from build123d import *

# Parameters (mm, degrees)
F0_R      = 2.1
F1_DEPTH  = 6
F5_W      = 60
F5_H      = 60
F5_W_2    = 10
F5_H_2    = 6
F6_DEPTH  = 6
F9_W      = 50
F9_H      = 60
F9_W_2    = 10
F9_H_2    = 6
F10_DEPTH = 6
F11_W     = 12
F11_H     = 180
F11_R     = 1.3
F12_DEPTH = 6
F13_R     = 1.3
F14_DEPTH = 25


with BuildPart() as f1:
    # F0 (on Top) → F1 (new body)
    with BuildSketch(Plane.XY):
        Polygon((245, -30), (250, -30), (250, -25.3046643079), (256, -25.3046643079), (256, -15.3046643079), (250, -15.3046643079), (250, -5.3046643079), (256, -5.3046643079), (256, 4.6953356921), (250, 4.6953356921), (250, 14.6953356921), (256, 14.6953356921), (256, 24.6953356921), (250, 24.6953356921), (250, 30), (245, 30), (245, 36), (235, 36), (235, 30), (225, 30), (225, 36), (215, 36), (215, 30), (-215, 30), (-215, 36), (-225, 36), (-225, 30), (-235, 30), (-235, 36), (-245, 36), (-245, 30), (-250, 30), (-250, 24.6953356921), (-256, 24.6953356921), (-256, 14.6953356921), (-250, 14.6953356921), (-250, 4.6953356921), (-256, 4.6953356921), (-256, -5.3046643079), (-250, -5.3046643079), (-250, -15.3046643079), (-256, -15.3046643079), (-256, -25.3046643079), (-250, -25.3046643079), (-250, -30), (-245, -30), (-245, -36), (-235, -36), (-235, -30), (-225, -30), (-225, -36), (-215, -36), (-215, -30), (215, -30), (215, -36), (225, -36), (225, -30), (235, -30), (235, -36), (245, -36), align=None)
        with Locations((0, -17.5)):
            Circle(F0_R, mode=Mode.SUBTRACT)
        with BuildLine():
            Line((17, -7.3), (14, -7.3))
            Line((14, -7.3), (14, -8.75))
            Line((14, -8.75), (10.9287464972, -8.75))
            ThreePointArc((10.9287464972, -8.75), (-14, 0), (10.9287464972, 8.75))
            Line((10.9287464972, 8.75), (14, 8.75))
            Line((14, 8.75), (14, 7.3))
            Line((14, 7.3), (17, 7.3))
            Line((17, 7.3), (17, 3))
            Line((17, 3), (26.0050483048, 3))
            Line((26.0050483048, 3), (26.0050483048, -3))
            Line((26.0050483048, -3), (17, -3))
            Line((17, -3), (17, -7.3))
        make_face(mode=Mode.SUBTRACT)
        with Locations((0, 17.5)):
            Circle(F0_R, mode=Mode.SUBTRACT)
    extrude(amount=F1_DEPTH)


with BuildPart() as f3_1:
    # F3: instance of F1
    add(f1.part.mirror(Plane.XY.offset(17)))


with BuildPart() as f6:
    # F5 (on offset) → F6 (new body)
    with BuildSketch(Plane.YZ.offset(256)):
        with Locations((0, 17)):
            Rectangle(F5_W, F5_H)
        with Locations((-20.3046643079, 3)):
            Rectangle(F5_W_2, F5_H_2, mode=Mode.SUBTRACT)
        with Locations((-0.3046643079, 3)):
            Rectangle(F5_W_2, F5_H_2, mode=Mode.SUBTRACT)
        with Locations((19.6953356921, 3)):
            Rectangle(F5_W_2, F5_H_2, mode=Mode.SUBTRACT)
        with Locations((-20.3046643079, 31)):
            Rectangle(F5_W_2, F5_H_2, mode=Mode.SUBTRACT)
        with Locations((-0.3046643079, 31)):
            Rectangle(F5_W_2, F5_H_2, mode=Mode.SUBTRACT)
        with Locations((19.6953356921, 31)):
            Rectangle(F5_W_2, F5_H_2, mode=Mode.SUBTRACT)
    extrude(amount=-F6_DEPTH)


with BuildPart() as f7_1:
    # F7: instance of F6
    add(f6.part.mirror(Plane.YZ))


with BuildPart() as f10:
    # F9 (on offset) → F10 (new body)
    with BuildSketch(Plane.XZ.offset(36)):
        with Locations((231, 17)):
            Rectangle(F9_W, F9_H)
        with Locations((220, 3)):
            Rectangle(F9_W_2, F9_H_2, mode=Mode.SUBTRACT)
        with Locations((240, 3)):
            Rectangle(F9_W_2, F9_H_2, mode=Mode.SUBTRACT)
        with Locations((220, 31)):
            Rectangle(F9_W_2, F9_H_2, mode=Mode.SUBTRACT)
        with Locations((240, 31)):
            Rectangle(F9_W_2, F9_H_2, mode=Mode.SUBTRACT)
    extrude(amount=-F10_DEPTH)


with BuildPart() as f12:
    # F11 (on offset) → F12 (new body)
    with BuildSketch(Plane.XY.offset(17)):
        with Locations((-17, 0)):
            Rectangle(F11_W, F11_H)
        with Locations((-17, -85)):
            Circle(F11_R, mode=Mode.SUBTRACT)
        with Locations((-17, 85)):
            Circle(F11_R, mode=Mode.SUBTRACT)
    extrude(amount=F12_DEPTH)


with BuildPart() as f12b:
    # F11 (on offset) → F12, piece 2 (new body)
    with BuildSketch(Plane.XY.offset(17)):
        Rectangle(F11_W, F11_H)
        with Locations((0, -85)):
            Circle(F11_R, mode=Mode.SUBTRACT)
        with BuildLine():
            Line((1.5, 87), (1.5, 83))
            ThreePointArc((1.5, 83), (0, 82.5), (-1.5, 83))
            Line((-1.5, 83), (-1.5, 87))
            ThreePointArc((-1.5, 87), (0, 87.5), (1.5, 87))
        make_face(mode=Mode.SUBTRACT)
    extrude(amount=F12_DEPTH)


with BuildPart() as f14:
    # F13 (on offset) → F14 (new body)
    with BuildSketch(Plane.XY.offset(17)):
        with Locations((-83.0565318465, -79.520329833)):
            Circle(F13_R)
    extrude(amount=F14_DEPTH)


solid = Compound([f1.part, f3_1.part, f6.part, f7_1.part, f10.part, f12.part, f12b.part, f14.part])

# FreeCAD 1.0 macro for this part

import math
import FreeCAD as App
import Part
import Sketcher
from FreeCAD import Vector
Q = App.Units.Quantity


def add_polygon(sketch, points):
    """Adds a closed chain of lines whose ends are joined by coincident constraints."""
    first, n = sketch.GeometryCount, len(points)
    for a, b in zip(points, points[1:] + points[:1]):
        sketch.addGeometry(Part.LineSegment(App.Vector(*a, 0), App.Vector(*b, 0)), False)
    for i in range(n):
        sketch.addConstraint(Sketcher.Constraint("Coincident", first + i, 2, first + (i + 1) % n, 1))

doc = App.newDocument("Part")
body = doc.addObject("PartDesign::Body", "Body")

sketch1 = doc.addObject("Sketcher::SketchObject", "Sketch")
body.addObject(sketch1)
sketch1.AttachmentSupport = (doc.XY_Plane, [""])
sketch1.MapMode = "FlatFace"
add_polygon(sketch1, [(245, -30), (250, -30), (250, -25.304664), (256, -25.304664), (256, -15.304664), (250, -15.304664), (250, -5.304664), (256, -5.304664), (256, 4.695336), (250, 4.695336), (250, 14.695336), (256, 14.695336), (256, 24.695336), (250, 24.695336), (250, 30), (245, 30), (245, 36), (235, 36), (235, 30), (225, 30), (225, 36), (215, 36), (215, 30), (-215, 30), (-215, 36), (-225, 36), (-225, 30), (-235, 30), (-235, 36), (-245, 36), (-245, 30), (-250, 30), (-250, 24.695336), (-256, 24.695336), (-256, 14.695336), (-250, 14.695336), (-250, 4.695336), (-256, 4.695336), (-256, -5.304664), (-250, -5.304664), (-250, -15.304664), (-256, -15.304664), (-256, -25.304664), (-250, -25.304664), (-250, -30), (-245, -30), (-245, -36), (-235, -36), (-235, -30), (-225, -30), (-225, -36), (-215, -36), (-215, -30), (215, -30), (215, -36), (225, -36), (225, -30), (235, -30), (235, -36), (245, -36)])
sketch1.addGeometry(Part.Circle(Vector(0, -17.5, 0), Vector(0, 0, 1), 2.1), False)
sketch1.addGeometry(Part.Circle(Vector(0, 17.5, 0), Vector(0, 0, 1), 2.1), False)
sketch1.addGeometry(Part.LineSegment(Vector(17, -3, 0), Vector(17, -7.3, 0)), False)
sketch1.addGeometry(Part.LineSegment(Vector(17, -7.3, 0), Vector(14, -7.3, 0)), False)
sketch1.addGeometry(Part.LineSegment(Vector(14, -7.3, 0), Vector(14, -8.75, 0)), False)
sketch1.addGeometry(Part.LineSegment(Vector(14, -8.75, 0), Vector(10.928746, -8.75, 0)), False)
sketch1.addGeometry(Part.ArcOfCircle(Part.Circle(Vector(0, 0, 0), Vector(0, 0, 1), 14), math.radians(38.682187), math.radians(321.317813)), False)
sketch1.addGeometry(Part.LineSegment(Vector(10.928746, 8.75, 0), Vector(14, 8.75, 0)), False)
sketch1.addGeometry(Part.LineSegment(Vector(14, 8.75, 0), Vector(14, 7.3, 0)), False)
sketch1.addGeometry(Part.LineSegment(Vector(14, 7.3, 0), Vector(17, 7.3, 0)), False)
sketch1.addGeometry(Part.LineSegment(Vector(17, 7.3, 0), Vector(17, 3, 0)), False)
sketch1.addGeometry(Part.LineSegment(Vector(17, 3, 0), Vector(26.005048, 3, 0)), False)
sketch1.addGeometry(Part.LineSegment(Vector(26.005048, 3, 0), Vector(26.005048, -3, 0)), False)
sketch1.addGeometry(Part.LineSegment(Vector(26.005048, -3, 0), Vector(17, -3, 0)), False)
sketch1.addConstraint([
    Sketcher.Constraint("Coincident", 62, 2, 63, 1),
    Sketcher.Constraint("Coincident", 63, 2, 64, 1),
    Sketcher.Constraint("Coincident", 64, 2, 65, 1),
    Sketcher.Constraint("Coincident", 65, 2, 66, 2),
    Sketcher.Constraint("Coincident", 66, 1, 67, 1),
    Sketcher.Constraint("Coincident", 67, 2, 68, 1),
    Sketcher.Constraint("Coincident", 68, 2, 69, 1),
    Sketcher.Constraint("Coincident", 69, 2, 70, 1),
    Sketcher.Constraint("Coincident", 70, 2, 71, 1),
    Sketcher.Constraint("Coincident", 71, 2, 72, 1),
    Sketcher.Constraint("Coincident", 72, 2, 73, 1),
    Sketcher.Constraint("Coincident", 73, 2, 62, 1),
    Sketcher.Constraint("Horizontal", 0),
    Sketcher.Constraint("Vertical", 1),
    Sketcher.Constraint("Horizontal", 2),
    Sketcher.Constraint("Vertical", 3),
    Sketcher.Constraint("Horizontal", 4),
    Sketcher.Constraint("Vertical", 5),
    Sketcher.Constraint("Horizontal", 6),
    Sketcher.Constraint("Vertical", 7),
    Sketcher.Constraint("Horizontal", 8),
    Sketcher.Constraint("Vertical", 9),
    Sketcher.Constraint("Horizontal", 10),
    Sketcher.Constraint("Vertical", 11),
    Sketcher.Constraint("Horizontal", 12),
    Sketcher.Constraint("Vertical", 13),
    Sketcher.Constraint("Horizontal", 14),
    Sketcher.Constraint("Vertical", 15),
    Sketcher.Constraint("Horizontal", 16),
    Sketcher.Constraint("Vertical", 17),
    Sketcher.Constraint("Horizontal", 18),
    Sketcher.Constraint("Vertical", 19),
    Sketcher.Constraint("Horizontal", 20),
    Sketcher.Constraint("Vertical", 21),
    Sketcher.Constraint("Horizontal", 22),
    Sketcher.Constraint("Vertical", 23),
    Sketcher.Constraint("Horizontal", 24),
    Sketcher.Constraint("Vertical", 25),
    Sketcher.Constraint("Horizontal", 26),
    Sketcher.Constraint("Vertical", 27),
    Sketcher.Constraint("Horizontal", 28),
    Sketcher.Constraint("Vertical", 29),
    Sketcher.Constraint("Horizontal", 30),
    Sketcher.Constraint("Vertical", 31),
    Sketcher.Constraint("Horizontal", 32),
    Sketcher.Constraint("Vertical", 33),
    Sketcher.Constraint("Horizontal", 34),
    Sketcher.Constraint("Vertical", 35),
    Sketcher.Constraint("Horizontal", 36),
    Sketcher.Constraint("Vertical", 37),
    Sketcher.Constraint("Horizontal", 38),
    Sketcher.Constraint("Vertical", 39),
    Sketcher.Constraint("Horizontal", 40),
    Sketcher.Constraint("Vertical", 41),
    Sketcher.Constraint("Horizontal", 42),
    Sketcher.Constraint("Vertical", 43),
    Sketcher.Constraint("Horizontal", 44),
    Sketcher.Constraint("Vertical", 45),
    Sketcher.Constraint("Horizontal", 46),
    Sketcher.Constraint("Vertical", 47),
    Sketcher.Constraint("Horizontal", 48),
    Sketcher.Constraint("Vertical", 49),
    Sketcher.Constraint("Horizontal", 50),
    Sketcher.Constraint("Vertical", 51),
    Sketcher.Constraint("Horizontal", 52),
    Sketcher.Constraint("Vertical", 53),
    Sketcher.Constraint("Horizontal", 54),
    Sketcher.Constraint("Vertical", 55),
    Sketcher.Constraint("Horizontal", 56),
    Sketcher.Constraint("Vertical", 57),
    Sketcher.Constraint("Horizontal", 58),
    Sketcher.Constraint("Vertical", 59),
    Sketcher.Constraint("Vertical", 62),
    Sketcher.Constraint("Horizontal", 63),
    Sketcher.Constraint("Vertical", 64),
    Sketcher.Constraint("Horizontal", 65),
    Sketcher.Constraint("Horizontal", 67),
    Sketcher.Constraint("Vertical", 68),
    Sketcher.Constraint("Horizontal", 69),
    Sketcher.Constraint("Vertical", 70),
    Sketcher.Constraint("Horizontal", 71),
    Sketcher.Constraint("Vertical", 72),
    Sketcher.Constraint("Horizontal", 73),
    Sketcher.Constraint("Coincident", 66, 3, -1, 1),
    Sketcher.Constraint("Equal", 60, 61),
    Sketcher.Constraint("Symmetric", 60, 3, 61, 3, -1, 1),
    Sketcher.Constraint("Symmetric", 0, 2, 30, 2, -1, 1),
    Sketcher.Constraint("Symmetric", 13, 2, 43, 2, -1, 1),
    Sketcher.Constraint("Symmetric", 15, 2, 45, 2, -1, 1),
    Sketcher.Constraint("Symmetric", 17, 2, 47, 2, -1, 1),
    Sketcher.Constraint("Symmetric", 19, 2, 49, 2, -1, 1),
    Sketcher.Constraint("Symmetric", 21, 2, 51, 2, -1, 1),
    Sketcher.Constraint("Symmetric", 23, 2, 53, 2, -1, 1),
    Sketcher.Constraint("Symmetric", 25, 2, 55, 2, -1, 1),
    Sketcher.Constraint("Symmetric", 27, 2, 57, 2, -1, 1),
    Sketcher.Constraint("Symmetric", 20, 2, 23, 2, -2),
    Sketcher.Constraint("Symmetric", 18, 2, 25, 2, -2),
    Sketcher.Constraint("Symmetric", 16, 2, 27, 2, -2),
    Sketcher.Constraint("Symmetric", 14, 2, 29, 2, -2),
    Sketcher.Constraint("Symmetric", 12, 2, 31, 2, -2),
    Sketcher.Constraint("Symmetric", 10, 2, 33, 2, -2),
    Sketcher.Constraint("Symmetric", 8, 2, 35, 2, -2),
    Sketcher.Constraint("Symmetric", 6, 2, 37, 2, -2),
    Sketcher.Constraint("Symmetric", 4, 2, 39, 2, -2),
    Sketcher.Constraint("Symmetric", 2, 2, 41, 2, -2),
    Sketcher.Constraint("Symmetric", 64, 2, 67, 2, -1),
    Sketcher.Constraint("Symmetric", 62, 2, 69, 2, -1),
    Sketcher.Constraint("PointOnObject", 60, 3, -2),
    Sketcher.Constraint("Horizontal", 14, 2, 17, 2),
    Sketcher.Constraint("Horizontal", 16, 2, 19, 2),
    Sketcher.Constraint("Horizontal", 18, 2, 21, 2),
    Sketcher.Constraint("Vertical", 1, 2, 4, 2),
    Sketcher.Constraint("Vertical", 3, 2, 6, 2),
    Sketcher.Constraint("Vertical", 5, 2, 8, 2),
    Sketcher.Constraint("Vertical", 7, 2, 10, 2),
    Sketcher.Constraint("Vertical", 15, 2, 58, 2),
    Sketcher.Constraint("Equal", 16, 18),
    Sketcher.Constraint("Equal", 18, 20),
    Sketcher.Constraint("Equal", 58, 3),
    Sketcher.Constraint("Equal", 3, 5),
    Sketcher.Constraint("Equal", 5, 7),
    Sketcher.Constraint("Equal", 7, 9),
    Sketcher.Constraint("Equal", 9, 11),
    Sketcher.Constraint("Equal", 42, 15),
    Sketcher.Constraint("Equal", 62, 70),
    Sketcher.Constraint("Equal", 59, 72),
    Sketcher.Constraint("Radius", 66, Q("14 mm")),
    Sketcher.Constraint("Diameter", 60, Q("4.2 mm")),
    Sketcher.Constraint("DistanceX", 0, 1, 0, 2, Q("5 mm")),
    Sketcher.Constraint("DistanceX", 2, 1, 2, 2, Q("6 mm")),
    Sketcher.Constraint("DistanceX", 16, 2, 16, 1, Q("10 mm")),
    Sketcher.Constraint("DistanceX", 22, 2, 22, 1, Q("430 mm")),
    Sketcher.Constraint("DistanceX", 63, 2, 63, 1, Q("3 mm")),
    Sketcher.Constraint("DistanceY", 62, 2, 62, 1, Q("4.3 mm")),
    Sketcher.Constraint("DistanceY", 0, 2, -1, 1, Q("30 mm")),
    Sketcher.Constraint("DistanceX", -1, 1, 62, 2, Q("17 mm")),
    Sketcher.Constraint("DistanceY", 64, 2, 64, 1, Q("1.45 mm")),
    Sketcher.Constraint("DistanceY", 60, 3, -1, 1, Q("17.5 mm")),
    Sketcher.Constraint("DistanceX", 71, 1, 71, 2, Q("9.005048 mm")),
    Sketcher.Constraint("DistanceY", 1, 1, 1, 2, Q("4.695336 mm")),
])
pad1 = doc.addObject("PartDesign::Pad", "Pad")
body.addObject(pad1)
pad1.Profile = sketch1
pad1.Length = 6
body2 = doc.addObject("PartDesign::Body", "Body001")
doc.recompute()

mirroring = doc.addObject("Part::Mirroring", "Mirroring")
mirroring.Source = body
mirroring.Base = Vector(0, 0, 17)
mirroring.Normal = Vector(0, 0, 1)
body2.BaseFeature = mirroring
doc.recompute()
body3 = doc.addObject("PartDesign::Body", "Body002")

sketch2 = doc.addObject("Sketcher::SketchObject", "Sketch001")
body3.addObject(sketch2)
sketch2.AttachmentSupport = (doc.getObject("YZ_Plane002"), [""])
sketch2.MapMode = "FlatFace"
sketch2.AttachmentOffset = App.Placement(Vector(0, 0, 256), App.Rotation())
add_polygon(sketch2, [(-30, 47), (-30, -13), (30, -13), (30, 47)])
add_polygon(sketch2, [(-15.304664, 0), (-25.304664, 0), (-25.304664, 6), (-15.304664, 6)])
add_polygon(sketch2, [(4.695336, 0), (-5.304664, 0), (-5.304664, 6), (4.695336, 6)])
add_polygon(sketch2, [(24.695336, 0), (14.695336, 0), (14.695336, 6), (24.695336, 6)])
add_polygon(sketch2, [(-15.304664, 28), (-25.304664, 28), (-25.304664, 34), (-15.304664, 34)])
add_polygon(sketch2, [(4.695336, 28), (-5.304664, 28), (-5.304664, 34), (4.695336, 34)])
add_polygon(sketch2, [(24.695336, 28), (14.695336, 28), (14.695336, 34), (24.695336, 34)])
sketch2.addConstraint([
    Sketcher.Constraint("Vertical", 0),
    Sketcher.Constraint("Horizontal", 1),
    Sketcher.Constraint("Vertical", 2),
    Sketcher.Constraint("Horizontal", 3),
    Sketcher.Constraint("Horizontal", 4),
    Sketcher.Constraint("Vertical", 5),
    Sketcher.Constraint("Horizontal", 6),
    Sketcher.Constraint("Vertical", 7),
    Sketcher.Constraint("Horizontal", 8),
    Sketcher.Constraint("Vertical", 9),
    Sketcher.Constraint("Horizontal", 10),
    Sketcher.Constraint("Vertical", 11),
    Sketcher.Constraint("Horizontal", 12),
    Sketcher.Constraint("Vertical", 13),
    Sketcher.Constraint("Horizontal", 14),
    Sketcher.Constraint("Vertical", 15),
    Sketcher.Constraint("Horizontal", 16),
    Sketcher.Constraint("Vertical", 17),
    Sketcher.Constraint("Horizontal", 18),
    Sketcher.Constraint("Vertical", 19),
    Sketcher.Constraint("Horizontal", 20),
    Sketcher.Constraint("Vertical", 21),
    Sketcher.Constraint("Horizontal", 22),
    Sketcher.Constraint("Vertical", 23),
    Sketcher.Constraint("Horizontal", 24),
    Sketcher.Constraint("Vertical", 25),
    Sketcher.Constraint("Horizontal", 26),
    Sketcher.Constraint("Vertical", 27),
    Sketcher.Constraint("PointOnObject", 4, 2, -1),
    Sketcher.Constraint("PointOnObject", 8, 2, -1),
    Sketcher.Constraint("PointOnObject", 12, 2, -1),
    Sketcher.Constraint("Horizontal", 6, 2, 9, 2),
    Sketcher.Constraint("Horizontal", 10, 2, 13, 2),
    Sketcher.Constraint("Horizontal", 19, 2, 20, 2),
    Sketcher.Constraint("Horizontal", 18, 2, 21, 2),
    Sketcher.Constraint("Horizontal", 23, 2, 24, 2),
    Sketcher.Constraint("Horizontal", 22, 2, 25, 2),
    Sketcher.Constraint("Vertical", 5, 2, 16, 2),
    Sketcher.Constraint("Vertical", 7, 2, 18, 2),
    Sketcher.Constraint("Vertical", 9, 2, 20, 2),
    Sketcher.Constraint("Vertical", 11, 2, 22, 2),
    Sketcher.Constraint("Vertical", 13, 2, 24, 2),
    Sketcher.Constraint("Vertical", 15, 2, 26, 2),
    Sketcher.Constraint("Equal", 6, 8),
    Sketcher.Constraint("Equal", 10, 12),
    Sketcher.Constraint("Equal", 3, 0),
    Sketcher.Constraint("Equal", 15, 17),
    Sketcher.Constraint("DistanceX", 1, 1, 1, 2, Q("60 mm")),
    Sketcher.Constraint("DistanceX", 4, 2, 4, 1, Q("10 mm")),
    Sketcher.Constraint("DistanceY", 5, 1, 5, 2, Q("6 mm")),
    Sketcher.Constraint("DistanceX", 0, 2, -1, 1, Q("30 mm")),
    Sketcher.Constraint("DistanceY", 0, 2, -1, 1, Q("13 mm")),
    Sketcher.Constraint("DistanceY", -1, 1, 16, 2, Q("28 mm")),
    Sketcher.Constraint("DistanceX", 7, 2, 8, 2, Q("10 mm")),
    Sketcher.Constraint("DistanceX", 11, 2, 12, 2, Q("10 mm")),
    Sketcher.Constraint("DistanceX", 4, 2, -1, 1, Q("25.304664 mm")),
])
pad2 = doc.addObject("PartDesign::Pad", "Pad001")
body3.addObject(pad2)
pad2.Profile = sketch2
pad2.Length = 6
pad2.Reversed = True
body4 = doc.addObject("PartDesign::Body", "Body003")
doc.recompute()

mirroring2 = doc.addObject("Part::Mirroring", "Mirroring001")
mirroring2.Source = body3
mirroring2.Base = Vector(0, 0, 0)
mirroring2.Normal = Vector(1, 0, 0)
body4.BaseFeature = mirroring2
doc.recompute()
body5 = doc.addObject("PartDesign::Body", "Body004")

sketch3 = doc.addObject("Sketcher::SketchObject", "Sketch002")
body5.addObject(sketch3)
sketch3.AttachmentSupport = (doc.getObject("XZ_Plane004"), [""])
sketch3.MapMode = "FlatFace"
sketch3.AttachmentOffset = App.Placement(Vector(0, 0, 36), App.Rotation())
add_polygon(sketch3, [(206, 47), (206, -13), (256, -13), (256, 47)])
add_polygon(sketch3, [(225, 0), (215, 0), (215, 6), (225, 6)])
add_polygon(sketch3, [(245, 0), (235, 0), (235, 6), (245, 6)])
add_polygon(sketch3, [(225, 28), (215, 28), (215, 34), (225, 34)])
add_polygon(sketch3, [(245, 28), (235, 28), (235, 34), (245, 34)])
sketch3.addConstraint([
    Sketcher.Constraint("Vertical", 0),
    Sketcher.Constraint("Horizontal", 1),
    Sketcher.Constraint("Vertical", 2),
    Sketcher.Constraint("Horizontal", 3),
    Sketcher.Constraint("Horizontal", 4),
    Sketcher.Constraint("Vertical", 5),
    Sketcher.Constraint("Horizontal", 6),
    Sketcher.Constraint("Vertical", 7),
    Sketcher.Constraint("Horizontal", 8),
    Sketcher.Constraint("Vertical", 9),
    Sketcher.Constraint("Horizontal", 10),
    Sketcher.Constraint("Vertical", 11),
    Sketcher.Constraint("Horizontal", 12),
    Sketcher.Constraint("Vertical", 13),
    Sketcher.Constraint("Horizontal", 14),
    Sketcher.Constraint("Vertical", 15),
    Sketcher.Constraint("Horizontal", 16),
    Sketcher.Constraint("Vertical", 17),
    Sketcher.Constraint("Horizontal", 18),
    Sketcher.Constraint("Vertical", 19),
    Sketcher.Constraint("PointOnObject", 4, 2, -1),
    Sketcher.Constraint("PointOnObject", 8, 2, -1),
    Sketcher.Constraint("Horizontal", 6, 2, 9, 2),
    Sketcher.Constraint("Horizontal", 15, 2, 16, 2),
    Sketcher.Constraint("Horizontal", 14, 2, 17, 2),
    Sketcher.Constraint("Vertical", 5, 2, 12, 2),
    Sketcher.Constraint("Vertical", 7, 2, 14, 2),
    Sketcher.Constraint("Vertical", 9, 2, 16, 2),
    Sketcher.Constraint("Vertical", 11, 2, 18, 2),
    Sketcher.Constraint("Equal", 6, 8),
    Sketcher.Constraint("Equal", 11, 13),
    Sketcher.Constraint("DistanceX", 1, 1, 1, 2, Q("50 mm")),
    Sketcher.Constraint("DistanceX", 4, 2, 4, 1, Q("10 mm")),
    Sketcher.Constraint("DistanceY", 0, 2, 0, 1, Q("60 mm")),
    Sketcher.Constraint("DistanceY", 5, 1, 5, 2, Q("6 mm")),
    Sketcher.Constraint("DistanceX", -1, 1, 0, 2, Q("206 mm")),
    Sketcher.Constraint("DistanceY", 0, 2, -1, 1, Q("13 mm")),
    Sketcher.Constraint("DistanceX", -1, 1, 4, 2, Q("215 mm")),
    Sketcher.Constraint("DistanceX", -1, 1, 8, 2, Q("235 mm")),
    Sketcher.Constraint("DistanceY", -1, 1, 12, 2, Q("28 mm")),
])
pad3 = doc.addObject("PartDesign::Pad", "Pad002")
body5.addObject(pad3)
pad3.Profile = sketch3
pad3.Length = 6
pad3.Reversed = True
body6 = doc.addObject("PartDesign::Body", "Body005")

sketch4 = doc.addObject("Sketcher::SketchObject", "Sketch003")
body6.addObject(sketch4)
sketch4.AttachmentSupport = (doc.getObject("XY_Plane005"), [""])
sketch4.MapMode = "FlatFace"
sketch4.AttachmentOffset = App.Placement(Vector(0, 0, 17), App.Rotation())
add_polygon(sketch4, [(-23, 90), (-23, -90), (-11, -90), (-11, 90)])
sketch4.addGeometry(Part.Circle(Vector(-17, -85, 0), Vector(0, 0, 1), 1.3), False)
sketch4.addGeometry(Part.Circle(Vector(-17, 85, 0), Vector(0, 0, 1), 1.3), False)
sketch4.addConstraint([
    Sketcher.Constraint("Vertical", 0),
    Sketcher.Constraint("Horizontal", 1),
    Sketcher.Constraint("Vertical", 2),
    Sketcher.Constraint("Horizontal", 3),
    Sketcher.Constraint("Equal", 4, 5),
    Sketcher.Constraint("Symmetric", 4, 3, 5, 3, -1),
    Sketcher.Constraint("Diameter", 4, Q("2.6 mm")),
    Sketcher.Constraint("DistanceX", 1, 1, 1, 2, Q("12 mm")),
    Sketcher.Constraint("DistanceY", 0, 2, 0, 1, Q("180 mm")),
    Sketcher.Constraint("DistanceX", 4, 3, -1, 1, Q("17 mm")),
    Sketcher.Constraint("DistanceY", 4, 3, -1, 1, Q("85 mm")),
    Sketcher.Constraint("DistanceX", 0, 2, -1, 1, Q("23 mm")),
    Sketcher.Constraint("DistanceY", 0, 2, -1, 1, Q("90 mm")),
])
pad4 = doc.addObject("PartDesign::Pad", "Pad003")
body6.addObject(pad4)
pad4.Profile = sketch4
pad4.Length = 6
body7 = doc.addObject("PartDesign::Body", "Body006")

sketch5 = doc.addObject("Sketcher::SketchObject", "Sketch004")
body7.addObject(sketch5)
sketch5.AttachmentSupport = (doc.getObject("XY_Plane006"), [""])
sketch5.MapMode = "FlatFace"
sketch5.AttachmentOffset = App.Placement(Vector(0, 0, 17), App.Rotation())
add_polygon(sketch5, [(-6, 90), (-6, -90), (6, -90), (6, 90)])
sketch5.addGeometry(Part.Circle(Vector(0, -85, 0), Vector(0, 0, 1), 1.3), False)
sketch5.addGeometry(Part.ArcOfCircle(Part.Circle(Vector(0, 85, 0), Vector(0, 0, 1), 2.5), math.radians(53.130102), math.radians(126.869898)), False)
sketch5.addGeometry(Part.LineSegment(Vector(1.5, 87, 0), Vector(1.5, 83, 0)), False)
sketch5.addGeometry(Part.ArcOfCircle(Part.Circle(Vector(0, 85, 0), Vector(0, 0, 1), 2.5), math.radians(-126.869898), math.radians(-53.130102)), False)
sketch5.addGeometry(Part.LineSegment(Vector(-1.5, 83, 0), Vector(-1.5, 87, 0)), False)
sketch5.addConstraint([
    Sketcher.Constraint("Coincident", 5, 1, 6, 1),
    Sketcher.Constraint("Coincident", 6, 2, 7, 2),
    Sketcher.Constraint("Coincident", 7, 1, 8, 1),
    Sketcher.Constraint("Coincident", 8, 2, 5, 2),
    Sketcher.Constraint("Vertical", 0),
    Sketcher.Constraint("Horizontal", 1),
    Sketcher.Constraint("Vertical", 2),
    Sketcher.Constraint("Horizontal", 3),
    Sketcher.Constraint("Vertical", 6),
    Sketcher.Constraint("Vertical", 8),
    Sketcher.Constraint("Coincident", 7, 3, 5, 3),
    Sketcher.Constraint("Equal", 5, 7),
    Sketcher.Constraint("Symmetric", 4, 3, 5, 3, -1, 1),
    Sketcher.Constraint("Symmetric", 0, 2, 2, 2, -1, 1),
    Sketcher.Constraint("Symmetric", 6, 2, 7, 1, -2),
    Sketcher.Constraint("Diameter", 4, Q("2.6 mm")),
    Sketcher.Constraint("Radius", 5, Q("2.5 mm")),
    Sketcher.Constraint("DistanceX", 1, 1, 1, 2, Q("12 mm")),
    Sketcher.Constraint("DistanceY", 0, 2, 0, 1, Q("180 mm")),
    Sketcher.Constraint("DistanceY", 6, 2, 6, 1, Q("4 mm")),
    Sketcher.Constraint("DistanceY", 4, 3, -1, 1, Q("85 mm")),
])
pad5 = doc.addObject("PartDesign::Pad", "Pad004")
body7.addObject(pad5)
pad5.Profile = sketch5
pad5.Length = 6
body8 = doc.addObject("PartDesign::Body", "Body007")

sketch6 = doc.addObject("Sketcher::SketchObject", "Sketch005")
body8.addObject(sketch6)
sketch6.AttachmentSupport = (doc.getObject("XY_Plane007"), [""])
sketch6.MapMode = "FlatFace"
sketch6.AttachmentOffset = App.Placement(Vector(0, 0, 17), App.Rotation())
sketch6.addGeometry(Part.Circle(Vector(-83.056532, -79.52033, 0), Vector(0, 0, 1), 1.3), False)
sketch6.addConstraint([
    Sketcher.Constraint("Diameter", 0, Q("2.6 mm")),
    Sketcher.Constraint("DistanceX", 0, 3, -1, 1, Q("83.056532 mm")),
    Sketcher.Constraint("DistanceY", 0, 3, -1, 1, Q("79.52033 mm")),
])
pad6 = doc.addObject("PartDesign::Pad", "Pad005")
body8.addObject(pad6)
pad6.Profile = sketch6
pad6.Length = 25
mirroring.Visibility = False
mirroring2.Visibility = False

doc.recompute()
